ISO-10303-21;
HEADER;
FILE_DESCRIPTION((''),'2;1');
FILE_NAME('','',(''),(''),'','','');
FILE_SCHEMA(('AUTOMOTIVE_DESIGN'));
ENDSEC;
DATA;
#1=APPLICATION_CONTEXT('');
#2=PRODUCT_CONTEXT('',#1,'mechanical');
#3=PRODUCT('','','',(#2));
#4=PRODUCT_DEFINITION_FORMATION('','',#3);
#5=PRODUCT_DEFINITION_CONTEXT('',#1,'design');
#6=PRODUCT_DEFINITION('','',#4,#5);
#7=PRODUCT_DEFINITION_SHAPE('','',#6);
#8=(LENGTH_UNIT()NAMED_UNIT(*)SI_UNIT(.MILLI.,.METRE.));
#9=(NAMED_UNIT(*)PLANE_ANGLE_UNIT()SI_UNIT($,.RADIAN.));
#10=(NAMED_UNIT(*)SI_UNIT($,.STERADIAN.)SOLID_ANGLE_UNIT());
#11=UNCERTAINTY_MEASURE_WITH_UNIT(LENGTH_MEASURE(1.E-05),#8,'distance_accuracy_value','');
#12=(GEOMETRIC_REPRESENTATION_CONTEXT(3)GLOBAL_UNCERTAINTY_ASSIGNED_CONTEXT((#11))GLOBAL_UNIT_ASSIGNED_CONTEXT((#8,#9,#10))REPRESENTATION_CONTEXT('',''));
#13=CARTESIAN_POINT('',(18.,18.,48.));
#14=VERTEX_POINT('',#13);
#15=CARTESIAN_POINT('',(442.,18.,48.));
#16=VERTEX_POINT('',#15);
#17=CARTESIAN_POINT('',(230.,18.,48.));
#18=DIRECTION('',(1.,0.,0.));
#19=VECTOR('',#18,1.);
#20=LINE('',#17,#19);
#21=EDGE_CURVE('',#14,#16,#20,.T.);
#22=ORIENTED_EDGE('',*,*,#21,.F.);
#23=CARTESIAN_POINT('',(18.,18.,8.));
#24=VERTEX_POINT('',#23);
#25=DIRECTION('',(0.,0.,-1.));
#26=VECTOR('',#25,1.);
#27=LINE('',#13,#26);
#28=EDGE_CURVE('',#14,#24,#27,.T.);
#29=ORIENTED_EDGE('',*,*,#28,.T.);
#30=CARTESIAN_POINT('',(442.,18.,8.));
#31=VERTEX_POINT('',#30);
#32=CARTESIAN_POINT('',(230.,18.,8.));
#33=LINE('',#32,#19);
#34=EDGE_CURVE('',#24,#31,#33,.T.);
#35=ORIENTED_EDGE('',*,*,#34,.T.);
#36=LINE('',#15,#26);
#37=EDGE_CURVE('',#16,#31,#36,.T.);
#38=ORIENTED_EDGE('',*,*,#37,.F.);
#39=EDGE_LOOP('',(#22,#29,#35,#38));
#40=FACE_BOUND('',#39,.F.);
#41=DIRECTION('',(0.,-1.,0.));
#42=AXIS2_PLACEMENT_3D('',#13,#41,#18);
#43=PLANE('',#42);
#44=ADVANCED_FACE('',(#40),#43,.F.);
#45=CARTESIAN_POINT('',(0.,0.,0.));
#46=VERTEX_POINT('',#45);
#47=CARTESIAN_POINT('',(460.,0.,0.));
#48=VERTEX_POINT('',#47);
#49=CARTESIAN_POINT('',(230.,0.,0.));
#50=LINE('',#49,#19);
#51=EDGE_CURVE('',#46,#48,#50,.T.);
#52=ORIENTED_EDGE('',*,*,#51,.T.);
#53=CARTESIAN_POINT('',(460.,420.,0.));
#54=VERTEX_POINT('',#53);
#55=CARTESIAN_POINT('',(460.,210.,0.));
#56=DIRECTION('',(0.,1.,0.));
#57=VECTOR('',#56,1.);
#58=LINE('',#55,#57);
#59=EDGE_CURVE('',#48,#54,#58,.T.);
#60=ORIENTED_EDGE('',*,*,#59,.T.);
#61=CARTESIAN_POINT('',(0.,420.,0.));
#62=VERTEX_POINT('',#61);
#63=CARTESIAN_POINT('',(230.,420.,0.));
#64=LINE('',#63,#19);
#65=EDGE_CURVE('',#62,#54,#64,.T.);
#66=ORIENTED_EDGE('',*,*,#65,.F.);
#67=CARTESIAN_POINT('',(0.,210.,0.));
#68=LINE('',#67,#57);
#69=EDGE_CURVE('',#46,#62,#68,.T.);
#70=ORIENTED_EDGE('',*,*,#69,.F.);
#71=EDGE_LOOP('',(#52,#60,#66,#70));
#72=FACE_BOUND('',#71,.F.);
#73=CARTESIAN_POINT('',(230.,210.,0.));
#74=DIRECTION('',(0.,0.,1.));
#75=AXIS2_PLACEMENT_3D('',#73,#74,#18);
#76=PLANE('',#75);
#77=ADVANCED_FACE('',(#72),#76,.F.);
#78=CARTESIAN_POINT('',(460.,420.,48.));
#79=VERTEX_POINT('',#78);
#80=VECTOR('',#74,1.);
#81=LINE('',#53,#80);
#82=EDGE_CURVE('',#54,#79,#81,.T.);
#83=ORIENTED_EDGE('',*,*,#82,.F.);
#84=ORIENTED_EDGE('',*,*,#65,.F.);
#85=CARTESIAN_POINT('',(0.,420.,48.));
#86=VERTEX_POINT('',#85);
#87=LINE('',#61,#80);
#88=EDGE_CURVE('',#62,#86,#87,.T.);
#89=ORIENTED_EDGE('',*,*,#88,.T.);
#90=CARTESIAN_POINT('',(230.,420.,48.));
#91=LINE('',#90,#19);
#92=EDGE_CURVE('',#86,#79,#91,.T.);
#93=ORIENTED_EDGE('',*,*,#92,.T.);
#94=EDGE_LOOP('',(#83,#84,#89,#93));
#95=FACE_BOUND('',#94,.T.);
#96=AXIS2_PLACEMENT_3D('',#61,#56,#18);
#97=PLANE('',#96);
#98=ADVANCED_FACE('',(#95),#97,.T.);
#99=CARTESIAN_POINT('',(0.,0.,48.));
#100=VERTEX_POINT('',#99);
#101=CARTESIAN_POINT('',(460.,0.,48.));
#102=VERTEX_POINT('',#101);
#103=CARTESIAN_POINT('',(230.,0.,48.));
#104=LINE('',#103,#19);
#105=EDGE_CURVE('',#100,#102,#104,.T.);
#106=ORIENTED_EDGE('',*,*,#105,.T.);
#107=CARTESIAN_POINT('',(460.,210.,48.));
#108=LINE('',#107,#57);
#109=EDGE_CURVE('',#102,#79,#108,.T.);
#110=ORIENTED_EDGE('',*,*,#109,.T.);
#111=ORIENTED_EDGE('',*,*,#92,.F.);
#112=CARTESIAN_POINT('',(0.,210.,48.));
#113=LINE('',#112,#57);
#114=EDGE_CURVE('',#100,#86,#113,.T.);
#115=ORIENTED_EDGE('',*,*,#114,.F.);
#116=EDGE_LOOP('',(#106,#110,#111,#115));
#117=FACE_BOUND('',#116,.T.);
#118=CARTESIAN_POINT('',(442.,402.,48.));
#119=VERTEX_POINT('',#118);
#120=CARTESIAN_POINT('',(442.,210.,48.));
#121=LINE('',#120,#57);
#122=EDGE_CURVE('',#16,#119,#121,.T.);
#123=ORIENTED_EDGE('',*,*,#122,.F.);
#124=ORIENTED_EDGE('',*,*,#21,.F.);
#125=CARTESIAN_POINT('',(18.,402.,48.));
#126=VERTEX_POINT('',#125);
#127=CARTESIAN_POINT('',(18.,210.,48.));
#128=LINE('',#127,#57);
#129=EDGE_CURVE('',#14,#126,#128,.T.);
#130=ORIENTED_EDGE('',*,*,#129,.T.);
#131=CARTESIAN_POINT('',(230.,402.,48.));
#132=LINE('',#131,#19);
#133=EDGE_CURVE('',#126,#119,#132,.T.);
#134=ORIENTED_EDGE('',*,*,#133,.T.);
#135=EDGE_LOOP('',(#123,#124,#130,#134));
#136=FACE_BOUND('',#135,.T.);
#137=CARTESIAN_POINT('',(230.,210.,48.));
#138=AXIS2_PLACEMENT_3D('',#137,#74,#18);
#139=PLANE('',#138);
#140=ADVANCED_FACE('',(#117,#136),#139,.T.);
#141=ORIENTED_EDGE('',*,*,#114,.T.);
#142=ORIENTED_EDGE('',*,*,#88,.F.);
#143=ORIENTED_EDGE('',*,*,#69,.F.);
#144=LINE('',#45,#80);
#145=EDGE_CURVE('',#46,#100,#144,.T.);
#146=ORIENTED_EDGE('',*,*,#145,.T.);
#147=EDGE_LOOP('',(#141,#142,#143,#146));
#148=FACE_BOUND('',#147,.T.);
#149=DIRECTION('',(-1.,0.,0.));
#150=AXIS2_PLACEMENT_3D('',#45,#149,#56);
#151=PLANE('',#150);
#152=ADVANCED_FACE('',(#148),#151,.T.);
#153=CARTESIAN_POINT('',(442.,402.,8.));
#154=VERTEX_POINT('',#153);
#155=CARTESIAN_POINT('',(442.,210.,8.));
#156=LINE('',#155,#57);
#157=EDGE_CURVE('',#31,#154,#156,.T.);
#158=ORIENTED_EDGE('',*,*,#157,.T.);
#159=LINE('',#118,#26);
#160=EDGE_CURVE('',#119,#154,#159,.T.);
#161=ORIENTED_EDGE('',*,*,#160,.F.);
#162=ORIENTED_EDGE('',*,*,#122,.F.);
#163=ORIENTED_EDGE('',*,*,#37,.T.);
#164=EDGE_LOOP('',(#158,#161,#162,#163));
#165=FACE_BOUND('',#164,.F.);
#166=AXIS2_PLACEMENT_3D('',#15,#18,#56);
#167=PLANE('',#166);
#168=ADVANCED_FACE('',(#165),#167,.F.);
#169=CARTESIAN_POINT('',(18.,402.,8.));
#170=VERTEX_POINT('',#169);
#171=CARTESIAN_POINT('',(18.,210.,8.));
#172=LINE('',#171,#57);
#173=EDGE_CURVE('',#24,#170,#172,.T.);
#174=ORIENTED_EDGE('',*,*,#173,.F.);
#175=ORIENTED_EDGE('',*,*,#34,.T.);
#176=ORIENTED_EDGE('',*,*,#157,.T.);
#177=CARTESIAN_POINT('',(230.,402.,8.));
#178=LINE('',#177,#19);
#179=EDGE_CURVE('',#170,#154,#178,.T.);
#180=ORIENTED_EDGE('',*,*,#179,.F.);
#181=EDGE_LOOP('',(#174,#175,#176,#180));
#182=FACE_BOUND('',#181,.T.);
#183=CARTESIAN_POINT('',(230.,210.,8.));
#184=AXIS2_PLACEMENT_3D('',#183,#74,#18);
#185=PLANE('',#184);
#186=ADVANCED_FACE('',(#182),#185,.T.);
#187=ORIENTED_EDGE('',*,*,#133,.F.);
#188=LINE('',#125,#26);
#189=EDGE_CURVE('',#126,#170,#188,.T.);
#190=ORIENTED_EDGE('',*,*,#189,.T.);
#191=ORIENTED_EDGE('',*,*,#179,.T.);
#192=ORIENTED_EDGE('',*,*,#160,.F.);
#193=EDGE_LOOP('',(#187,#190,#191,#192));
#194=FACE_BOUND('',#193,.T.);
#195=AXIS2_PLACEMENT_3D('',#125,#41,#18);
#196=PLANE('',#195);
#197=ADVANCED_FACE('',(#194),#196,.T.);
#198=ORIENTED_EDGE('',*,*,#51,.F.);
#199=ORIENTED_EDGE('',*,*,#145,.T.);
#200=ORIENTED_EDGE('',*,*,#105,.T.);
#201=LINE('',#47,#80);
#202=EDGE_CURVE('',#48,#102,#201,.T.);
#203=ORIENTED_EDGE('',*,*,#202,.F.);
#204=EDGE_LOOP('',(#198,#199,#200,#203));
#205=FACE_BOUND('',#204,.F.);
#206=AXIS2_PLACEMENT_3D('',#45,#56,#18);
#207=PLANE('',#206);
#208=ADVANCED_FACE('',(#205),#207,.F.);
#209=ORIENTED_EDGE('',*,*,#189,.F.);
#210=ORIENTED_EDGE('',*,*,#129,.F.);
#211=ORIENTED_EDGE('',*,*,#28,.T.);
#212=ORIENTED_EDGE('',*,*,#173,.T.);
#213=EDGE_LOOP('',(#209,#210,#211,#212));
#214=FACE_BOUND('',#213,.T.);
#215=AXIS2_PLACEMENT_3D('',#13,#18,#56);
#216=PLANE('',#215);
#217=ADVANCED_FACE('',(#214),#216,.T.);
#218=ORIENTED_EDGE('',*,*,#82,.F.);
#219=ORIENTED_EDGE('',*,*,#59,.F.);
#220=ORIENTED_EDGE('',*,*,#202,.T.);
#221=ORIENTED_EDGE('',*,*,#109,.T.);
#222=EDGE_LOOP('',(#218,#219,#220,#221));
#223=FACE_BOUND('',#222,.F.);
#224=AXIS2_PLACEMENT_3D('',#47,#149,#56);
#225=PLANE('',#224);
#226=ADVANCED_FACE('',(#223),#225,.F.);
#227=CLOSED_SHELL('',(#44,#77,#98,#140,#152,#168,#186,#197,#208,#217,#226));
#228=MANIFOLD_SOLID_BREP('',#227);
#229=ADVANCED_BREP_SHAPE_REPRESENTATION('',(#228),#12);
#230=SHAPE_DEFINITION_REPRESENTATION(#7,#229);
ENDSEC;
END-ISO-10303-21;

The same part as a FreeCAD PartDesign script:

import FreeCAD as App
import Part
import Sketcher

doc = App.newDocument("Part")
body = doc.addObject("PartDesign::Body", "Body")

sketch1 = body.newObject("Sketcher::SketchObject", "Sketch")
sketch1.AttachmentSupport = (doc.getObject("XY_Plane"), [""])
sketch1.MapMode = "FlatFace"
sketch1.addGeometry([
    Part.LineSegment(App.Vector(0, 420, 0), App.Vector(0, 0, 0)),
    Part.LineSegment(App.Vector(0, 0, 0), App.Vector(460, 0, 0)),
    Part.LineSegment(App.Vector(460, 0, 0), App.Vector(460, 420, 0)),
    Part.LineSegment(App.Vector(460, 420, 0), App.Vector(0, 420, 0)),
], False)
sketch1.addConstraint([
    Sketcher.Constraint("Coincident", 0, 2, 1, 1),
    Sketcher.Constraint("Coincident", 1, 2, 2, 1),
    Sketcher.Constraint("Coincident", 2, 2, 3, 1),
    Sketcher.Constraint("Coincident", 3, 2, 0, 1),
    Sketcher.Constraint("Vertical", 0),
    Sketcher.Constraint("Horizontal", 1),
    Sketcher.Constraint("Vertical", 2),
    Sketcher.Constraint("Horizontal", 3),
    Sketcher.Constraint("Coincident", 0, 2, -1, 1),
    Sketcher.Constraint("DistanceX", 1, 1, 1, 2, 460.0),
    Sketcher.Constraint("DistanceY", 0, 2, 0, 1, 420.0),
])
pad1 = body.newObject("PartDesign::Pad", "Pad")
pad1.Profile = sketch1
pad1.Length = 48

sketch2 = body.newObject("Sketcher::SketchObject", "Sketch001")
sketch2.AttachmentSupport = (doc.getObject("XY_Plane"), [""])
sketch2.MapMode = "FlatFace"
sketch2.AttachmentOffset = App.Placement(App.Vector(0, 0, 48), App.Rotation())
sketch2.addGeometry([
    Part.LineSegment(App.Vector(18, 402, 0), App.Vector(18, 18, 0)),
    Part.LineSegment(App.Vector(18, 18, 0), App.Vector(442, 18, 0)),
    Part.LineSegment(App.Vector(442, 18, 0), App.Vector(442, 402, 0)),
    Part.LineSegment(App.Vector(442, 402, 0), App.Vector(18, 402, 0)),
], False)
sketch2.addConstraint([
    Sketcher.Constraint("Coincident", 0, 2, 1, 1),
    Sketcher.Constraint("Coincident", 1, 2, 2, 1),
    Sketcher.Constraint("Coincident", 2, 2, 3, 1),
    Sketcher.Constraint("Coincident", 3, 2, 0, 1),
    Sketcher.Constraint("Vertical", 0),
    Sketcher.Constraint("Horizontal", 1),
    Sketcher.Constraint("Vertical", 2),
    Sketcher.Constraint("Horizontal", 3),
    Sketcher.Constraint("DistanceX", 1, 1, 1, 2, 424.0),
    Sketcher.Constraint("DistanceY", 0, 2, 0, 1, 384.0),
    Sketcher.Constraint("DistanceX", -1, 1, 0, 2, 18.0),
    Sketcher.Constraint("DistanceY", -1, 1, 0, 2, 18.0),
])
pocket1 = body.newObject("PartDesign::Pocket", "Pocket")
pocket1.Profile = sketch2
pocket1.Length = 40

doc.recompute()
